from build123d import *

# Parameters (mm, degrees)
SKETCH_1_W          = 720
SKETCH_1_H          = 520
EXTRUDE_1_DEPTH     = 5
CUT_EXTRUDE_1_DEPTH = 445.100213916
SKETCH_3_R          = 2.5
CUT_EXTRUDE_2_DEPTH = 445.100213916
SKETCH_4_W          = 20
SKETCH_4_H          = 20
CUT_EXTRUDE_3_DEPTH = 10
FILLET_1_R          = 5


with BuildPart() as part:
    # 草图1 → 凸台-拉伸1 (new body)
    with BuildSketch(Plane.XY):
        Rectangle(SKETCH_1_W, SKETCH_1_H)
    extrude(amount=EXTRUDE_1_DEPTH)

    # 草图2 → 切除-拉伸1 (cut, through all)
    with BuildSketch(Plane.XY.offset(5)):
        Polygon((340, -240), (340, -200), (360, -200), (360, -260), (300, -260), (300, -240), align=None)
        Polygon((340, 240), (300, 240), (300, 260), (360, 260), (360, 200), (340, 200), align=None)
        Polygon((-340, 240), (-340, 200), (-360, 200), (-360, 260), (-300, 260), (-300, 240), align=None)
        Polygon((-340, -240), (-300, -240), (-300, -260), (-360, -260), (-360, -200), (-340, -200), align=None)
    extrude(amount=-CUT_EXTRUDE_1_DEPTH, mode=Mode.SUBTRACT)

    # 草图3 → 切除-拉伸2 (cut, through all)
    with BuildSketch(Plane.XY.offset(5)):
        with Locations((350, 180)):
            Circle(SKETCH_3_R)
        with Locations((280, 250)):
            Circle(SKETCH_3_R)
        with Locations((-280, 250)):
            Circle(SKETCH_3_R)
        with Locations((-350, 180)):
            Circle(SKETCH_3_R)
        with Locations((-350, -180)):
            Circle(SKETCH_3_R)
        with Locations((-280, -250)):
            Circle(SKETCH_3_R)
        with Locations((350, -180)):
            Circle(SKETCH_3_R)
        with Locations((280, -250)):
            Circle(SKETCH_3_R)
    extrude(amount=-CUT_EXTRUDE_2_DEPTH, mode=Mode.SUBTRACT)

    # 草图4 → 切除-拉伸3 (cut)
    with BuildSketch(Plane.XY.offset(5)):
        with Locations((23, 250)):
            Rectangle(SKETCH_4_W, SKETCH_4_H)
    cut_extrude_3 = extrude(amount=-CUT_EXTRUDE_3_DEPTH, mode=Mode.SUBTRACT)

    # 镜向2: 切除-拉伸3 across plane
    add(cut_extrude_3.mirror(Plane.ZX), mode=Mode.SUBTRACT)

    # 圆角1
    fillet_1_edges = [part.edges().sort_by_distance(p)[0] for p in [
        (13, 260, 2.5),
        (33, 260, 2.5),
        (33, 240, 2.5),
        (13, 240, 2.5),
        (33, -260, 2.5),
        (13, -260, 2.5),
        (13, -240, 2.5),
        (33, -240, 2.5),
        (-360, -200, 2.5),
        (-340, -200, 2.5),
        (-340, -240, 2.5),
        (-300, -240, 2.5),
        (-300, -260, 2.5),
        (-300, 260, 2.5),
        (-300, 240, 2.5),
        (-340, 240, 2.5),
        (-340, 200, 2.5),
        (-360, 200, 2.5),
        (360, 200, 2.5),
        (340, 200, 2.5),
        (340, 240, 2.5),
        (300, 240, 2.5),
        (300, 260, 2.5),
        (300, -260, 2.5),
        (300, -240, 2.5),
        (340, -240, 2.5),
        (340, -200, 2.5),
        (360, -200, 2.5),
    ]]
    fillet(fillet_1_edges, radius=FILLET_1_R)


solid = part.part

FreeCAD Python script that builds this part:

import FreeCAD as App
import Part
import Sketcher
from FreeCAD import Vector
Q = App.Units.Quantity


def edges_at(feature, points):
    """Names of the edges that pass closest to the given points."""
    edges = feature.Shape.Edges
    near = lambda p: min(range(len(edges)), key=lambda i: edges[i].distToShape(Part.Vertex(*p))[0])
    return sorted({f"Edge{near(p) + 1}" for p in points})

doc = App.newDocument("Part")
body = doc.addObject("PartDesign::Body", "Body")

sketch1 = body.newObject("Sketcher::SketchObject", "Sketch")
sketch1.AttachmentSupport = (doc.getObject("XY_Plane"), [""])
sketch1.MapMode = "FlatFace"
sketch1.addGeometry(Part.LineSegment(Vector(-360, 260, 0), Vector(-360, -260, 0)), False)
sketch1.addGeometry(Part.LineSegment(Vector(-360, -260, 0), Vector(360, -260, 0)), False)
sketch1.addGeometry(Part.LineSegment(Vector(360, -260, 0), Vector(360, 260, 0)), False)
sketch1.addGeometry(Part.LineSegment(Vector(360, 260, 0), Vector(-360, 260, 0)), False)
sketch1.addConstraint(Sketcher.Constraint("Coincident", 0, 2, 1, 1))
sketch1.addConstraint(Sketcher.Constraint("Coincident", 1, 2, 2, 1))
sketch1.addConstraint(Sketcher.Constraint("Coincident", 2, 2, 3, 1))
sketch1.addConstraint(Sketcher.Constraint("Coincident", 3, 2, 0, 1))
sketch1.addConstraint(Sketcher.Constraint("Vertical", 0))
sketch1.addConstraint(Sketcher.Constraint("Horizontal", 1))
sketch1.addConstraint(Sketcher.Constraint("Vertical", 2))
sketch1.addConstraint(Sketcher.Constraint("Horizontal", 3))
sketch1.addConstraint(Sketcher.Constraint("Symmetric", 0, 2, 2, 2, -1, 1))
sketch1.addConstraint(Sketcher.Constraint("DistanceX", 1, 1, 1, 2, Q("720 mm")))
sketch1.addConstraint(Sketcher.Constraint("DistanceY", 0, 2, 0, 1, Q("520 mm")))
pad1 = body.newObject("PartDesign::Pad", "Pad")
pad1.Profile = sketch1
pad1.Length = 5

sketch2 = body.newObject("Sketcher::SketchObject", "Sketch001")
sketch2.AttachmentSupport = (doc.getObject("XY_Plane"), [""])
sketch2.MapMode = "FlatFace"
sketch2.AttachmentOffset = App.Placement(Vector(0, 0, 5), App.Rotation())
sketch2.addGeometry(Part.LineSegment(Vector(340, -200, 0), Vector(340, -240, 0)), False)
sketch2.addGeometry(Part.LineSegment(Vector(340, -240, 0), Vector(300, -240, 0)), False)
sketch2.addGeometry(Part.LineSegment(Vector(300, -240, 0), Vector(300, -260, 0)), False)
sketch2.addGeometry(Part.LineSegment(Vector(300, -260, 0), Vector(360, -260, 0)), False)
sketch2.addGeometry(Part.LineSegment(Vector(360, -260, 0), Vector(360, -200, 0)), False)
sketch2.addGeometry(Part.LineSegment(Vector(360, -200, 0), Vector(340, -200, 0)), False)
sketch2.addGeometry(Part.LineSegment(Vector(300, 240, 0), Vector(340, 240, 0)), False)
sketch2.addGeometry(Part.LineSegment(Vector(340, 240, 0), Vector(340, 200, 0)), False)
sketch2.addGeometry(Part.LineSegment(Vector(340, 200, 0), Vector(360, 200, 0)), False)
sketch2.addGeometry(Part.LineSegment(Vector(360, 200, 0), Vector(360, 260, 0)), False)
sketch2.addGeometry(Part.LineSegment(Vector(360, 260, 0), Vector(300, 260, 0)), False)
sketch2.addGeometry(Part.LineSegment(Vector(300, 260, 0), Vector(300, 240, 0)), False)
sketch2.addGeometry(Part.LineSegment(Vector(-340, 200, 0), Vector(-340, 240, 0)), False)
sketch2.addGeometry(Part.LineSegment(Vector(-340, 240, 0), Vector(-300, 240, 0)), False)
sketch2.addGeometry(Part.LineSegment(Vector(-300, 240, 0), Vector(-300, 260, 0)), False)
sketch2.addGeometry(Part.LineSegment(Vector(-300, 260, 0), Vector(-360, 260, 0)), False)
sketch2.addGeometry(Part.LineSegment(Vector(-360, 260, 0), Vector(-360, 200, 0)), False)
sketch2.addGeometry(Part.LineSegment(Vector(-360, 200, 0), Vector(-340, 200, 0)), False)
sketch2.addGeometry(Part.LineSegment(Vector(-300, -240, 0), Vector(-340, -240, 0)), False)
sketch2.addGeometry(Part.LineSegment(Vector(-340, -240, 0), Vector(-340, -200, 0)), False)
sketch2.addGeometry(Part.LineSegment(Vector(-340, -200, 0), Vector(-360, -200, 0)), False)
sketch2.addGeometry(Part.LineSegment(Vector(-360, -200, 0), Vector(-360, -260, 0)), False)
sketch2.addGeometry(Part.LineSegment(Vector(-360, -260, 0), Vector(-300, -260, 0)), False)
sketch2.addGeometry(Part.LineSegment(Vector(-300, -260, 0), Vector(-300, -240, 0)), False)
sketch2.addConstraint(Sketcher.Constraint("Coincident", 0, 2, 1, 1))
sketch2.addConstraint(Sketcher.Constraint("Coincident", 1, 2, 2, 1))
sketch2.addConstraint(Sketcher.Constraint("Coincident", 2, 2, 3, 1))
sketch2.addConstraint(Sketcher.Constraint("Coincident", 3, 2, 4, 1))
sketch2.addConstraint(Sketcher.Constraint("Coincident", 4, 2, 5, 1))
sketch2.addConstraint(Sketcher.Constraint("Coincident", 5, 2, 0, 1))
sketch2.addConstraint(Sketcher.Constraint("Coincident", 6, 2, 7, 1))
sketch2.addConstraint(Sketcher.Constraint("Coincident", 7, 2, 8, 1))
sketch2.addConstraint(Sketcher.Constraint("Coincident", 8, 2, 9, 1))
sketch2.addConstraint(Sketcher.Constraint("Coincident", 9, 2, 10, 1))
sketch2.addConstraint(Sketcher.Constraint("Coincident", 10, 2, 11, 1))
sketch2.addConstraint(Sketcher.Constraint("Coincident", 11, 2, 6, 1))
sketch2.addConstraint(Sketcher.Constraint("Coincident", 12, 2, 13, 1))
sketch2.addConstraint(Sketcher.Constraint("Coincident", 13, 2, 14, 1))
sketch2.addConstraint(Sketcher.Constraint("Coincident", 14, 2, 15, 1))
sketch2.addConstraint(Sketcher.Constraint("Coincident", 15, 2, 16, 1))
sketch2.addConstraint(Sketcher.Constraint("Coincident", 16, 2, 17, 1))
sketch2.addConstraint(Sketcher.Constraint("Coincident", 17, 2, 12, 1))
sketch2.addConstraint(Sketcher.Constraint("Coincident", 18, 2, 19, 1))
sketch2.addConstraint(Sketcher.Constraint("Coincident", 19, 2, 20, 1))
sketch2.addConstraint(Sketcher.Constraint("Coincident", 20, 2, 21, 1))
sketch2.addConstraint(Sketcher.Constraint("Coincident", 21, 2, 22, 1))
sketch2.addConstraint(Sketcher.Constraint("Coincident", 22, 2, 23, 1))
sketch2.addConstraint(Sketcher.Constraint("Coincident", 23, 2, 18, 1))
sketch2.addConstraint(Sketcher.Constraint("Vertical", 0))
sketch2.addConstraint(Sketcher.Constraint("Horizontal", 1))
sketch2.addConstraint(Sketcher.Constraint("Vertical", 2))
sketch2.addConstraint(Sketcher.Constraint("Horizontal", 3))
sketch2.addConstraint(Sketcher.Constraint("Vertical", 4))
sketch2.addConstraint(Sketcher.Constraint("Horizontal", 5))
sketch2.addConstraint(Sketcher.Constraint("Horizontal", 6))
sketch2.addConstraint(Sketcher.Constraint("Vertical", 7))
sketch2.addConstraint(Sketcher.Constraint("Horizontal", 8))
sketch2.addConstraint(Sketcher.Constraint("Vertical", 9))
sketch2.addConstraint(Sketcher.Constraint("Horizontal", 10))
sketch2.addConstraint(Sketcher.Constraint("Vertical", 11))
sketch2.addConstraint(Sketcher.Constraint("Vertical", 12))
sketch2.addConstraint(Sketcher.Constraint("Horizontal", 13))
sketch2.addConstraint(Sketcher.Constraint("Vertical", 14))
sketch2.addConstraint(Sketcher.Constraint("Horizontal", 15))
sketch2.addConstraint(Sketcher.Constraint("Vertical", 16))
sketch2.addConstraint(Sketcher.Constraint("Horizontal", 17))
sketch2.addConstraint(Sketcher.Constraint("Horizontal", 18))
sketch2.addConstraint(Sketcher.Constraint("Vertical", 19))
sketch2.addConstraint(Sketcher.Constraint("Horizontal", 20))
sketch2.addConstraint(Sketcher.Constraint("Vertical", 21))
sketch2.addConstraint(Sketcher.Constraint("Horizontal", 22))
sketch2.addConstraint(Sketcher.Constraint("Vertical", 23))
sketch2.addConstraint(Sketcher.Constraint("Symmetric", 0, 2, 12, 2, -1, 1))
sketch2.addConstraint(Sketcher.Constraint("Symmetric", 2, 2, 14, 2, -1, 1))
sketch2.addConstraint(Sketcher.Constraint("Symmetric", 4, 2, 16, 2, -1, 1))
sketch2.addConstraint(Sketcher.Constraint("Symmetric", 6, 2, 18, 2, -1, 1))
sketch2.addConstraint(Sketcher.Constraint("Symmetric", 8, 2, 20, 2, -1, 1))
sketch2.addConstraint(Sketcher.Constraint("Symmetric", 10, 2, 22, 2, -1, 1))
sketch2.addConstraint(Sketcher.Constraint("Symmetric", 6, 2, 12, 2, -2))
sketch2.addConstraint(Sketcher.Constraint("Symmetric", 10, 2, 14, 2, -2))
sketch2.addConstraint(Sketcher.Constraint("Symmetric", 8, 2, 16, 2, -2))
sketch2.addConstraint(Sketcher.Constraint("Equal", 18, 0))
sketch2.addConstraint(Sketcher.Constraint("Equal", 20, 2))
sketch2.addConstraint(Sketcher.Constraint("DistanceX", 1, 2, 1, 1, Q("40 mm")))
sketch2.addConstraint(Sketcher.Constraint("DistanceX", 3, 1, 3, 2, Q("60 mm")))
sketch2.addConstraint(Sketcher.Constraint("DistanceX", -1, 1, 0, 2, Q("340 mm")))
sketch2.addConstraint(Sketcher.Constraint("DistanceY", 0, 2, -1, 1, Q("240 mm")))
pocket1 = body.newObject("PartDesign::Pocket", "Pocket")
pocket1.Profile = sketch2
pocket1.Type = "ThroughAll"

sketch3 = body.newObject("Sketcher::SketchObject", "Sketch002")
sketch3.AttachmentSupport = (doc.getObject("XY_Plane"), [""])
sketch3.MapMode = "FlatFace"
sketch3.AttachmentOffset = App.Placement(Vector(0, 0, 5), App.Rotation())
sketch3.addGeometry(Part.Circle(Vector(350, 180, 0), Vector(0, 0, 1), 2.5), False)
sketch3.addGeometry(Part.Circle(Vector(280, 250, 0), Vector(0, 0, 1), 2.5), False)
sketch3.addGeometry(Part.Circle(Vector(-280, 250, 0), Vector(0, 0, 1), 2.5), False)
sketch3.addGeometry(Part.Circle(Vector(-350, 180, 0), Vector(0, 0, 1), 2.5), False)
sketch3.addGeometry(Part.Circle(Vector(-350, -180, 0), Vector(0, 0, 1), 2.5), False)
sketch3.addGeometry(Part.Circle(Vector(-280, -250, 0), Vector(0, 0, 1), 2.5), False)
sketch3.addGeometry(Part.Circle(Vector(350, -180, 0), Vector(0, 0, 1), 2.5), False)
sketch3.addGeometry(Part.Circle(Vector(280, -250, 0), Vector(0, 0, 1), 2.5), False)
sketch3.addConstraint(Sketcher.Constraint("Equal", 0, 1))
sketch3.addConstraint(Sketcher.Constraint("Equal", 1, 2))
sketch3.addConstraint(Sketcher.Constraint("Equal", 2, 3))
sketch3.addConstraint(Sketcher.Constraint("Equal", 3, 4))
sketch3.addConstraint(Sketcher.Constraint("Equal", 4, 5))
sketch3.addConstraint(Sketcher.Constraint("Equal", 5, 6))
sketch3.addConstraint(Sketcher.Constraint("Equal", 6, 7))
sketch3.addConstraint(Sketcher.Constraint("Symmetric", 0, 3, 4, 3, -1, 1))
sketch3.addConstraint(Sketcher.Constraint("Symmetric", 1, 3, 5, 3, -1, 1))
sketch3.addConstraint(Sketcher.Constraint("Symmetric", 3, 3, 6, 3, -1, 1))
sketch3.addConstraint(Sketcher.Constraint("Symmetric", 2, 3, 7, 3, -1, 1))
sketch3.addConstraint(Sketcher.Constraint("Symmetric", 1, 3, 2, 3, -2))
sketch3.addConstraint(Sketcher.Constraint("Symmetric", 0, 3, 3, 3, -2))
sketch3.addConstraint(Sketcher.Constraint("Diameter", 0, Q("5 mm")))
sketch3.addConstraint(Sketcher.Constraint("DistanceX", -1, 1, 0, 3, Q("350 mm")))
sketch3.addConstraint(Sketcher.Constraint("DistanceY", -1, 1, 0, 3, Q("180 mm")))
sketch3.addConstraint(Sketcher.Constraint("DistanceX", -1, 1, 1, 3, Q("280 mm")))
sketch3.addConstraint(Sketcher.Constraint("DistanceY", -1, 1, 1, 3, Q("250 mm")))
pocket2 = body.newObject("PartDesign::Pocket", "Pocket001")
pocket2.Profile = sketch3
pocket2.Type = "ThroughAll"

sketch4 = body.newObject("Sketcher::SketchObject", "Sketch003")
sketch4.AttachmentSupport = (doc.getObject("XY_Plane"), [""])
sketch4.MapMode = "FlatFace"
sketch4.AttachmentOffset = App.Placement(Vector(0, 0, 5), App.Rotation())
sketch4.addGeometry(Part.LineSegment(Vector(13, 260, 0), Vector(13, 240, 0)), False)
sketch4.addGeometry(Part.LineSegment(Vector(13, 240, 0), Vector(33, 240, 0)), False)
sketch4.addGeometry(Part.LineSegment(Vector(33, 240, 0), Vector(33, 260, 0)), False)
sketch4.addGeometry(Part.LineSegment(Vector(33, 260, 0), Vector(13, 260, 0)), False)
sketch4.addConstraint(Sketcher.Constraint("Coincident", 0, 2, 1, 1))
sketch4.addConstraint(Sketcher.Constraint("Coincident", 1, 2, 2, 1))
sketch4.addConstraint(Sketcher.Constraint("Coincident", 2, 2, 3, 1))
sketch4.addConstraint(Sketcher.Constraint("Coincident", 3, 2, 0, 1))
sketch4.addConstraint(Sketcher.Constraint("Vertical", 0))
sketch4.addConstraint(Sketcher.Constraint("Horizontal", 1))
sketch4.addConstraint(Sketcher.Constraint("Vertical", 2))
sketch4.addConstraint(Sketcher.Constraint("Horizontal", 3))
sketch4.addConstraint(Sketcher.Constraint("Equal", 3, 0))
sketch4.addConstraint(Sketcher.Constraint("DistanceX", 1, 1, 1, 2, Q("20 mm")))
sketch4.addConstraint(Sketcher.Constraint("DistanceX", -1, 1, 0, 2, Q("13 mm")))
sketch4.addConstraint(Sketcher.Constraint("DistanceY", -1, 1, 0, 2, Q("240 mm")))
pocket3 = body.newObject("PartDesign::Pocket", "Pocket002")
pocket3.Profile = sketch4
pocket3.Length = 10
doc.recompute()

mirrored = body.newObject("PartDesign::Mirrored", "Mirrored")
mirrored.Originals = [pocket3]
mirrored.MirrorPlane = (doc.getObject("XZ_Plane"), [""])
body.Tip = mirrored
doc.recompute()

fillet = body.newObject("PartDesign::Fillet", "Fillet")
fillet.Base = (mirrored, edges_at(mirrored, [
    (13, 260, 2.5),
    (33, 260, 2.5),
    (33, 240, 2.5),
    (13, 240, 2.5),
    (33, -260, 2.5),
    (13, -260, 2.5),
    (13, -240, 2.5),
    (33, -240, 2.5),
    (-360, -200, 2.5),
    (-340, -200, 2.5),
    (-340, -240, 2.5),
    (-300, -240, 2.5),
    (-300, -260, 2.5),
    (-300, 260, 2.5),
    (-300, 240, 2.5),
    (-340, 240, 2.5),
    (-340, 200, 2.5),
    (-360, 200, 2.5),
    (360, 200, 2.5),
    (340, 200, 2.5),
    (340, 240, 2.5),
    (300, 240, 2.5),
    (300, 260, 2.5),
    (300, -260, 2.5),
    (300, -240, 2.5),
    (340, -240, 2.5),
    (340, -200, 2.5),
    (360, -200, 2.5),
]))
fillet.Radius = 5

doc.recompute()
